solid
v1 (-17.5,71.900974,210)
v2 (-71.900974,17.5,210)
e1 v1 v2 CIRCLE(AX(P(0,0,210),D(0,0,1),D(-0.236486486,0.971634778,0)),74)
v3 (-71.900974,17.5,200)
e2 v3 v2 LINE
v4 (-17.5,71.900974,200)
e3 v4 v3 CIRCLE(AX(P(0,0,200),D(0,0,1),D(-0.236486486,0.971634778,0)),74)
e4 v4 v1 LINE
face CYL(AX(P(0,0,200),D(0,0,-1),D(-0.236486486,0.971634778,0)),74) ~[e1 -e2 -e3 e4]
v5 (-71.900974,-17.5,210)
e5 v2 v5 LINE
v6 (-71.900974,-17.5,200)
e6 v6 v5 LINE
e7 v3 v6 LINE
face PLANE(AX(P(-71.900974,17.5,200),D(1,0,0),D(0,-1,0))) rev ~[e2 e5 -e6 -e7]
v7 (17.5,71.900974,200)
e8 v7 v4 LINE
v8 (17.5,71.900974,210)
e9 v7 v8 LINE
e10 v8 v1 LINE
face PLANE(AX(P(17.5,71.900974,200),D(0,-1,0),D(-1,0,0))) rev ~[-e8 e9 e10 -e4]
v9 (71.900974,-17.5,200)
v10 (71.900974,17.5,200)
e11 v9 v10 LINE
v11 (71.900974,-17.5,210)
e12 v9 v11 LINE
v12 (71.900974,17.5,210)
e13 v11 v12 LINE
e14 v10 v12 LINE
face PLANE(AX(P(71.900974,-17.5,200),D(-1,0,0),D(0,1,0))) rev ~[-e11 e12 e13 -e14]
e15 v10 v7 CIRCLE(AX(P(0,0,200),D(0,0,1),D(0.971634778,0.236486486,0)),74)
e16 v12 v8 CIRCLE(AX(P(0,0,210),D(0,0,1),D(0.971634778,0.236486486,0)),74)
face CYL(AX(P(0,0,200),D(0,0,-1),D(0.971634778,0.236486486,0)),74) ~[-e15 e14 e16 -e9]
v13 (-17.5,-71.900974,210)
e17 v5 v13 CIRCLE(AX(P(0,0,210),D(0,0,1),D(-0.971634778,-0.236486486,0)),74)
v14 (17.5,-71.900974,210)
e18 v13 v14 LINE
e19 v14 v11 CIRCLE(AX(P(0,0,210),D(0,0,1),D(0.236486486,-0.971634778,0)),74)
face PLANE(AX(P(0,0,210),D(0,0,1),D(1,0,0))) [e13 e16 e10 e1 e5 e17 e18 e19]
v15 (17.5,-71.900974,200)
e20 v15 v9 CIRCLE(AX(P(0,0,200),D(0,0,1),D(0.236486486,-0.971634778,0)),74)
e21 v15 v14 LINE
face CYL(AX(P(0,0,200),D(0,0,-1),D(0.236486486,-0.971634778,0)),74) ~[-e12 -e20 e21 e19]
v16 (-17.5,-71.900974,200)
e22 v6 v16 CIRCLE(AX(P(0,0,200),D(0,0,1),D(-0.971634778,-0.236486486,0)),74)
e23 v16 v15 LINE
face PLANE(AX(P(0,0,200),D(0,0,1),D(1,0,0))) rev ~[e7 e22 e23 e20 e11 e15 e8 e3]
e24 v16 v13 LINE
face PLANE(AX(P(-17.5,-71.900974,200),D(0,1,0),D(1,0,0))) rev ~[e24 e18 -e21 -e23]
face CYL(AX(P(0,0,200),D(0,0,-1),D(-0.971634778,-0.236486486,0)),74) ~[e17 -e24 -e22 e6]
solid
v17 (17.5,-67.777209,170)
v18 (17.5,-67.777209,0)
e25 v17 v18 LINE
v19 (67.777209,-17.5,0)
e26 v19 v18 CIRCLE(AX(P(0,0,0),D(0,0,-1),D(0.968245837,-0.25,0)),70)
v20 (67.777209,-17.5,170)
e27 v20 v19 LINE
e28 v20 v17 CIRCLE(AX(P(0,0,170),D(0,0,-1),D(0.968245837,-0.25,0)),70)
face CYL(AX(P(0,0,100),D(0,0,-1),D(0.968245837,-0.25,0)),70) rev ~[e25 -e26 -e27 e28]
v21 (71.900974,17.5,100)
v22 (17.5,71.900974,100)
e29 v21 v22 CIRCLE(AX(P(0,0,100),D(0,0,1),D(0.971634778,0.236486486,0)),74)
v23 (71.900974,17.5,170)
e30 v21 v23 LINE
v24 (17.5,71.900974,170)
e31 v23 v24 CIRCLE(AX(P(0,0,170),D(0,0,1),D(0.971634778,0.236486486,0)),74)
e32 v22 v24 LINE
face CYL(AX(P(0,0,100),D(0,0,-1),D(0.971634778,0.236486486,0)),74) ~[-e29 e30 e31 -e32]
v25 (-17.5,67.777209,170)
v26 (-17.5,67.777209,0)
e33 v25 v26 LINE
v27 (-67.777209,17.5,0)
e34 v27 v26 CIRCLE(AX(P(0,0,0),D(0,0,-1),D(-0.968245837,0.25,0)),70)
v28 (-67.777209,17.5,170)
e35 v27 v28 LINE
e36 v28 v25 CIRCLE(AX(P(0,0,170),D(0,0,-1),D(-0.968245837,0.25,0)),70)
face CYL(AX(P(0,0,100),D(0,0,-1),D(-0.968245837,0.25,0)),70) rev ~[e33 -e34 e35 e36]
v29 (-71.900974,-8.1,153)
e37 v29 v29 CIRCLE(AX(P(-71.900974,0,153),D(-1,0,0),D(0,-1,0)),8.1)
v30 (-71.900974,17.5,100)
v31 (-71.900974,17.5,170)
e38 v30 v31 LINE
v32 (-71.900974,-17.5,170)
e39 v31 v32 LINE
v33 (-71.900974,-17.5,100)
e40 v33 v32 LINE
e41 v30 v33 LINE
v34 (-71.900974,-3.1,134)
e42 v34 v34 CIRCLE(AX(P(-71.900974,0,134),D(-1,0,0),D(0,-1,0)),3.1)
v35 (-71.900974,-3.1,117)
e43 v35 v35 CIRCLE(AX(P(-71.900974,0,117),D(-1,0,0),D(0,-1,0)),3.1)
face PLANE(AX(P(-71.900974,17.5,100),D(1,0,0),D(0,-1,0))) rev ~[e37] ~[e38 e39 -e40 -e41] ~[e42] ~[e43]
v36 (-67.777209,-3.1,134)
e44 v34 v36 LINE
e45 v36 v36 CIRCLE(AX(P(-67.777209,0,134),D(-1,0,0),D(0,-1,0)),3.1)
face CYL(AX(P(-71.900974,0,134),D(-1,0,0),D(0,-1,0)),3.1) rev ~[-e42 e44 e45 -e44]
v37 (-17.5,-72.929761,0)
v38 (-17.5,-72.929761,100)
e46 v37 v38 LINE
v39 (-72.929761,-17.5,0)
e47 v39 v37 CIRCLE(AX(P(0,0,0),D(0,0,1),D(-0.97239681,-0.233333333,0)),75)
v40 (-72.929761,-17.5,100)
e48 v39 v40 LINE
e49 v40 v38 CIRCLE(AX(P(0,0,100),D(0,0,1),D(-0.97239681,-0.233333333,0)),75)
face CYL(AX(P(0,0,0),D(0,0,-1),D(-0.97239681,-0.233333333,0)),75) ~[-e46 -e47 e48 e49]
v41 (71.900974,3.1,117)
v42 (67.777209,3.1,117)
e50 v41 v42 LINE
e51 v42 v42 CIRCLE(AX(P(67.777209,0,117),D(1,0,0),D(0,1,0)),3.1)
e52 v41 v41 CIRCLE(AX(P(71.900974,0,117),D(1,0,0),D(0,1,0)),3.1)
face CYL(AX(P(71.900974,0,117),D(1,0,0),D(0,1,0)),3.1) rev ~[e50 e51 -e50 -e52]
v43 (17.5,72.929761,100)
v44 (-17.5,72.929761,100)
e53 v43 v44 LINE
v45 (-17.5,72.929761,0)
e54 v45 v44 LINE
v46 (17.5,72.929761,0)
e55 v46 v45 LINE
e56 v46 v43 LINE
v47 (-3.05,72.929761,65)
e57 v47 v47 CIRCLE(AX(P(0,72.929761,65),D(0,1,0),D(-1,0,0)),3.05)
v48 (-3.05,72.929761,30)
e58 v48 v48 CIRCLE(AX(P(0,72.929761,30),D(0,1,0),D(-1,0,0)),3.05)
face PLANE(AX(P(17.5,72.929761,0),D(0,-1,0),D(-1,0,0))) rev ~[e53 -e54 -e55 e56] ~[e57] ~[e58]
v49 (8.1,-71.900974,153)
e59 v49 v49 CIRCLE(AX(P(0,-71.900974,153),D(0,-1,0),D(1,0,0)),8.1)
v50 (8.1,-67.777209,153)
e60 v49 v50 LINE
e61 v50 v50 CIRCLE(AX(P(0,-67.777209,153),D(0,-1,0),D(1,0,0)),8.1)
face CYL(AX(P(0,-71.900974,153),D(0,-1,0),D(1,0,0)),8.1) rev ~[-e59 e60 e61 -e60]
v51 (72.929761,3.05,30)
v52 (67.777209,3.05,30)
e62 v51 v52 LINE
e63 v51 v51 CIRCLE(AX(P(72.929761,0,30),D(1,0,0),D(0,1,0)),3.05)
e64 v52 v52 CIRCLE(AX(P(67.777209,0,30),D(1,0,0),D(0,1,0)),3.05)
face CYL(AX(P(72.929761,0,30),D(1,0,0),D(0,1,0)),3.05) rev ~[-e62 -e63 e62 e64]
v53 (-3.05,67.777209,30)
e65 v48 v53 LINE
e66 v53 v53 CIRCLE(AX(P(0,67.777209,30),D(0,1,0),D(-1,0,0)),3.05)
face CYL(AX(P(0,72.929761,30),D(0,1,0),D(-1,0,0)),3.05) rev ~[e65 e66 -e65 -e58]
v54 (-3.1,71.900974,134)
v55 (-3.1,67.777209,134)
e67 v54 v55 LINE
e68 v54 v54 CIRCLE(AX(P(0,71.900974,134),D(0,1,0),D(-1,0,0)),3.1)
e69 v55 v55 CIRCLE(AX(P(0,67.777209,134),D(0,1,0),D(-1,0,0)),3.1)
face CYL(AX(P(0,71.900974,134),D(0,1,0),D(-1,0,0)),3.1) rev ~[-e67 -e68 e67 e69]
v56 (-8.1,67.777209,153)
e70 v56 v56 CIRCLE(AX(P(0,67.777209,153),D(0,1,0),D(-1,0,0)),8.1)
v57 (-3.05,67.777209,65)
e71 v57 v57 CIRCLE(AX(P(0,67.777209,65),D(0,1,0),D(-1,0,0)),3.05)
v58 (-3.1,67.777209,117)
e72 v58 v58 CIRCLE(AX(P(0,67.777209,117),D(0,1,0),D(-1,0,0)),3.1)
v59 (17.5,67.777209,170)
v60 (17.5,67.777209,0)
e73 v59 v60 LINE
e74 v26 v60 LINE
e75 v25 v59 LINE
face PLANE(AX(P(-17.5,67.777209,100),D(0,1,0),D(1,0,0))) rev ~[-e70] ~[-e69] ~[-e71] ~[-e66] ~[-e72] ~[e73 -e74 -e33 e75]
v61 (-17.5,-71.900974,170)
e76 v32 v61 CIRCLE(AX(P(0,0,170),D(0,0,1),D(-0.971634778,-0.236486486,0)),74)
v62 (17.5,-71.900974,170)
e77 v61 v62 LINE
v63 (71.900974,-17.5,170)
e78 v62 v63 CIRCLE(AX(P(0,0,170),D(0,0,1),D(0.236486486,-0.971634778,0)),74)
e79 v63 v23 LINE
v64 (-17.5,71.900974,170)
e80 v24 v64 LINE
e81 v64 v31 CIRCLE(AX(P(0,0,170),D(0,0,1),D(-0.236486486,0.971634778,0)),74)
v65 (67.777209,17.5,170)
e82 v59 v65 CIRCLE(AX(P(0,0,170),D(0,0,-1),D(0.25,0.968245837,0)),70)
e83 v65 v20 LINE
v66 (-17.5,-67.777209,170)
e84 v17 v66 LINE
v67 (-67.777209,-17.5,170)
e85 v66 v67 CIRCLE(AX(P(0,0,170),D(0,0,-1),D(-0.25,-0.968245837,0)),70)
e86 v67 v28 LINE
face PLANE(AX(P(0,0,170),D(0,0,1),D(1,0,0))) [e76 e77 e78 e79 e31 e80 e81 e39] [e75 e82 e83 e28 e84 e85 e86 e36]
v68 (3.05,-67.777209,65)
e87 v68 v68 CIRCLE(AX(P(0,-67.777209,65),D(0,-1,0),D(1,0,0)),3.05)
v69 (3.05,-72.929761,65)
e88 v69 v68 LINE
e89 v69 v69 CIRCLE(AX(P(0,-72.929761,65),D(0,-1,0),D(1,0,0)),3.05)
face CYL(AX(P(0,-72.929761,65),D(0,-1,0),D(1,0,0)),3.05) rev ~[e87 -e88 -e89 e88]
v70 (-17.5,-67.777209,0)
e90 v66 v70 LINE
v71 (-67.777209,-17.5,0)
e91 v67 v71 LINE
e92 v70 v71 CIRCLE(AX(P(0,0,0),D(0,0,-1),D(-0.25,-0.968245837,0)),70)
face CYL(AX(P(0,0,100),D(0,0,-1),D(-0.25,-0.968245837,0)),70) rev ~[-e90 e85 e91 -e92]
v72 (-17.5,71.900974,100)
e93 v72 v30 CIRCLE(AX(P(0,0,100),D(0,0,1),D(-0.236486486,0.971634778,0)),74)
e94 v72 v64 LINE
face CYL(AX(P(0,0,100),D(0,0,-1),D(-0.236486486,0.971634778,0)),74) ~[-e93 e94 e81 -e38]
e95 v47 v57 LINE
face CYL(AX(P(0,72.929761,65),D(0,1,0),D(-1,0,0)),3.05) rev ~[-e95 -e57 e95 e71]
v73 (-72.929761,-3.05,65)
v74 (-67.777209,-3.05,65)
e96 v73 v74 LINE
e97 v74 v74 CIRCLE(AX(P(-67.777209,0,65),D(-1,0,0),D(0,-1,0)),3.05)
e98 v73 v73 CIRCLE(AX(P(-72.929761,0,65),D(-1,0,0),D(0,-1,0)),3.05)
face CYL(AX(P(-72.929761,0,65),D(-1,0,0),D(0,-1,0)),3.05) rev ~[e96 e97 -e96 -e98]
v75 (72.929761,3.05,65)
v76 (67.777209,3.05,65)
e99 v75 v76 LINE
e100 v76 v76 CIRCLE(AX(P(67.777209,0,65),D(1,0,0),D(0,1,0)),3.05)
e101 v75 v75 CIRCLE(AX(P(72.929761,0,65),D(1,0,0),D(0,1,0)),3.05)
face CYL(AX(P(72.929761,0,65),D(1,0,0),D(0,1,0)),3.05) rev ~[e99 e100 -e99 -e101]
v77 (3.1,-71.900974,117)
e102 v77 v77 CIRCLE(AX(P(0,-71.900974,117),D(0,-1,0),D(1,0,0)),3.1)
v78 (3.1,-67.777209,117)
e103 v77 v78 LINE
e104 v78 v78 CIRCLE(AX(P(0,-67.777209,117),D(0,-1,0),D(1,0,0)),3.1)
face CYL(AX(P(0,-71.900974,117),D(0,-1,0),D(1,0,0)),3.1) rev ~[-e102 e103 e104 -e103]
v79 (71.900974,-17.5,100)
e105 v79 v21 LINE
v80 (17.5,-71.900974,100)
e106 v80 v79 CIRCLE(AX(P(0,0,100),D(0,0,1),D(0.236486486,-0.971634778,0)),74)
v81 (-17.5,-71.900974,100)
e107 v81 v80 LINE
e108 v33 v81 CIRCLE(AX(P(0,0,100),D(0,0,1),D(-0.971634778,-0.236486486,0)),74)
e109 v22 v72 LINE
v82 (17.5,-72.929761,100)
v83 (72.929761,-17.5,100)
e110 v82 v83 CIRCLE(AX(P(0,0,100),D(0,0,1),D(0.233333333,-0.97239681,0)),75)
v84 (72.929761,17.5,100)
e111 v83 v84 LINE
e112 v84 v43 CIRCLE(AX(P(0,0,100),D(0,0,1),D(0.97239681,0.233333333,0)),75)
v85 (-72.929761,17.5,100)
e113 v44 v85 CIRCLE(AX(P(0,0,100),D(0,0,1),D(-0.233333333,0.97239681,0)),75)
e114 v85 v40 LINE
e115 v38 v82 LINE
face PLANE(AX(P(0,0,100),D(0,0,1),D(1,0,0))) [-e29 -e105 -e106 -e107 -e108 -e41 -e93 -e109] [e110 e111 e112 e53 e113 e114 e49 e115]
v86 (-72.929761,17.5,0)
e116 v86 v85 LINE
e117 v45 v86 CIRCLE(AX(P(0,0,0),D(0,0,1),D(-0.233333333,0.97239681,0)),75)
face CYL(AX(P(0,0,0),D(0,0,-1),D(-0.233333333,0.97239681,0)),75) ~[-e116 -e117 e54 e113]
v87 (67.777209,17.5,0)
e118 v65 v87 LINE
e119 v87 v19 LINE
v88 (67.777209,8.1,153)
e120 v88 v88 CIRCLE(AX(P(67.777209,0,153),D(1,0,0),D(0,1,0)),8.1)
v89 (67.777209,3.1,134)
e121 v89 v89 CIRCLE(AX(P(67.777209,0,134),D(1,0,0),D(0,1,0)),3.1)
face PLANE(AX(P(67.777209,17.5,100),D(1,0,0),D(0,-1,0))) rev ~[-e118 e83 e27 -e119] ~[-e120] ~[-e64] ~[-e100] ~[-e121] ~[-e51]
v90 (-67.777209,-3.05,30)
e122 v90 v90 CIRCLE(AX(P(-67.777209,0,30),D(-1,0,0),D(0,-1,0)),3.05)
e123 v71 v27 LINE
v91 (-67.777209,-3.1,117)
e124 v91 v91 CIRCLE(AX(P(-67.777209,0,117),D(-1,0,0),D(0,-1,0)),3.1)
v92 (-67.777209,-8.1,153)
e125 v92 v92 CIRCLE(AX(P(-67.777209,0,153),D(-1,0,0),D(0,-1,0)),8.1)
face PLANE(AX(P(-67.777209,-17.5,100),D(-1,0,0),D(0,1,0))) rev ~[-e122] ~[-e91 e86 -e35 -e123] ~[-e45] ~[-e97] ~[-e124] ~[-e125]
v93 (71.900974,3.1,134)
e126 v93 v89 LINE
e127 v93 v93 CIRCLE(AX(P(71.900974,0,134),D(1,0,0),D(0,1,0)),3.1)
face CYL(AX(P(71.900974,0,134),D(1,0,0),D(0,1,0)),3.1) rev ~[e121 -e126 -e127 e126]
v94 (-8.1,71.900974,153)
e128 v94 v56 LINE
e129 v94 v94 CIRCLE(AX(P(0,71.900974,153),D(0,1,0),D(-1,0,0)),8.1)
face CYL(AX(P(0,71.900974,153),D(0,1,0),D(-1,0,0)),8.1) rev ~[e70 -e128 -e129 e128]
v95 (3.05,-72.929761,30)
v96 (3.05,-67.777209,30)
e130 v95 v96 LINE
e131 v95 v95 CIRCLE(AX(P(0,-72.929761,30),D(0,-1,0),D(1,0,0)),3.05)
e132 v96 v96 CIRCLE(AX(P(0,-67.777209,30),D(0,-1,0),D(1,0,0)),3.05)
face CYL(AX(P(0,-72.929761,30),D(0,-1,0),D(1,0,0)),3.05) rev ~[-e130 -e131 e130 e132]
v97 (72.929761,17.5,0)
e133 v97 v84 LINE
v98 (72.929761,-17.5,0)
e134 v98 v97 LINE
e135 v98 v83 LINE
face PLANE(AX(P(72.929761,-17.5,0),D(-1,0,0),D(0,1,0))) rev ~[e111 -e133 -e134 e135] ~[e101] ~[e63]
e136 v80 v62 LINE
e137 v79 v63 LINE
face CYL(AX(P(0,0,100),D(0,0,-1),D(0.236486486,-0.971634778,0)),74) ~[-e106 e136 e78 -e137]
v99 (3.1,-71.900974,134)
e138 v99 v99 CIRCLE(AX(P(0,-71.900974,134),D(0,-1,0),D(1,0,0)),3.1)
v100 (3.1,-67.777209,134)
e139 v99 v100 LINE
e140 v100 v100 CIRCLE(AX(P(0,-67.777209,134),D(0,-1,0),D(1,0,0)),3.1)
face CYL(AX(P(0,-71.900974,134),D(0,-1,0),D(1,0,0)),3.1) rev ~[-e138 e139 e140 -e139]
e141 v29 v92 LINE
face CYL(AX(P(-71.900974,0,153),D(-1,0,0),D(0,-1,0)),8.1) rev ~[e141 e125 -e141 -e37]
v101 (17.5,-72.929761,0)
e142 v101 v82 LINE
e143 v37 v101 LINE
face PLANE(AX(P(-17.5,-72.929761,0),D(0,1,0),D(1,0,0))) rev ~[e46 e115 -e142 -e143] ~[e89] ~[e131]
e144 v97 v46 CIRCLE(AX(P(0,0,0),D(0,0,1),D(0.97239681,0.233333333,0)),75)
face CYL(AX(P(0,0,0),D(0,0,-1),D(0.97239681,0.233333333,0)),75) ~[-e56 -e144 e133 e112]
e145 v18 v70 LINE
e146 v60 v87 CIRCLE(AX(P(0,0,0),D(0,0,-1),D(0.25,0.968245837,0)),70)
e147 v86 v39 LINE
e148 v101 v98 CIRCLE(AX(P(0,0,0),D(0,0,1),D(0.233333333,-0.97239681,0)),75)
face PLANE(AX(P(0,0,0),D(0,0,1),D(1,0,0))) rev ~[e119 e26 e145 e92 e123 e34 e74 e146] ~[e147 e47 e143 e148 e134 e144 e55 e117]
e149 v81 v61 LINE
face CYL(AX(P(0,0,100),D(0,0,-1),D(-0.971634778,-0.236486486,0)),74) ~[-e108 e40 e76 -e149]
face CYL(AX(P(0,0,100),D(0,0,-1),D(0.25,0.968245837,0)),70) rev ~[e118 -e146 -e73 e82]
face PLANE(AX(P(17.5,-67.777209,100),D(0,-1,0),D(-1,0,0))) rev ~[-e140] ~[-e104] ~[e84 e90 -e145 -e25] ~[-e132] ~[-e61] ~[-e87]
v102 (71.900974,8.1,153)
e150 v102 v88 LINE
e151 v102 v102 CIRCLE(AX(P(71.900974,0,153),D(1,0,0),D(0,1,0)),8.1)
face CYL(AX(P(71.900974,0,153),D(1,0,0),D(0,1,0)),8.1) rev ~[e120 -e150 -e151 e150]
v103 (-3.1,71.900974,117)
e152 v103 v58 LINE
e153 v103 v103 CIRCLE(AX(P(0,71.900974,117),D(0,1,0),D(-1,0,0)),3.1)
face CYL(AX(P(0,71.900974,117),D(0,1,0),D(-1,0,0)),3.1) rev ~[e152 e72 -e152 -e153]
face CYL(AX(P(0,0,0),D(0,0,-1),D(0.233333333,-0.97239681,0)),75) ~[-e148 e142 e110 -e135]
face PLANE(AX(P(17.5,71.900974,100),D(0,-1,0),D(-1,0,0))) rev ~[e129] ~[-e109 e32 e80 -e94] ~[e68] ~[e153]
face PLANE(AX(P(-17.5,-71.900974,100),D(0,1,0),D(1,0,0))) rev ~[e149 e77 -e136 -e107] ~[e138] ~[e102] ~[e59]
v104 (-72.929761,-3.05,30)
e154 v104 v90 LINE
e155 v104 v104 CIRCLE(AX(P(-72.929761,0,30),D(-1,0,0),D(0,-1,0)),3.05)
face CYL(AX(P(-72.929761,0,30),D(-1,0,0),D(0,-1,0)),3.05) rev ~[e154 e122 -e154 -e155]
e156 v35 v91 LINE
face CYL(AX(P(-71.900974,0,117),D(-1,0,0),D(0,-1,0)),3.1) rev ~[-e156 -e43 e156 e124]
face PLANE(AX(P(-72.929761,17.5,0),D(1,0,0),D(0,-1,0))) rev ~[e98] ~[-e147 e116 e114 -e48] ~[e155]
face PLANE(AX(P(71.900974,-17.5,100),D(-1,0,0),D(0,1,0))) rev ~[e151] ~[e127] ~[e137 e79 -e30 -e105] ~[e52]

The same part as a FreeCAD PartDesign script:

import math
import FreeCAD as App
import Part
import Sketcher
from FreeCAD import Vector

doc = App.newDocument("Part")
body = doc.addObject("PartDesign::Body", "Body")

# Sketch on XY plane
sketch1 = doc.addObject("Sketcher::SketchObject", "Sketch")
body.addObject(sketch1)
sketch1.AttachmentSupport = (doc.XY_Plane, [""])
sketch1.MapMode = "FlatFace"
sketch1.addGeometry([
    Part.LineSegment(Vector(18, 73, 0), Vector(-18, 73, 0)),  # 0
    Part.ArcOfCircle(Part.Circle(Vector(0, 0, 0), Vector(0, 0, 1), 75), math.radians(103), math.radians(167)),  # 1
    Part.LineSegment(Vector(-73, 18, 0), Vector(-73, -18, 0)),  # 2
    Part.ArcOfCircle(Part.Circle(Vector(0, 0, 0), Vector(0, 0, 1), 75), math.radians(-167), math.radians(-103)),  # 3
    Part.LineSegment(Vector(-18, -73, 0), Vector(18, -73, 0)),  # 4
    Part.ArcOfCircle(Part.Circle(Vector(0, 0, 0), Vector(0, 0, 1), 75), math.radians(-77), math.radians(-13)),  # 5
    Part.LineSegment(Vector(73, -18, 0), Vector(73, 18, 0)),  # 6
    Part.ArcOfCircle(Part.Circle(Vector(0, 0, 0), Vector(0, 0, 1), 75), math.radians(13), math.radians(77)),  # 7
    Part.LineSegment(Vector(-68, -18, 0), Vector(-68, 18, 0)),  # 8
    Part.ArcOfCircle(Part.Circle(Vector(0, 0, 0), Vector(0, 0, 1), 70), math.radians(104), math.radians(166)),  # 9
    Part.LineSegment(Vector(-18, 68, 0), Vector(18, 68, 0)),  # 10
    Part.ArcOfCircle(Part.Circle(Vector(0, 0, 0), Vector(0, 0, 1), 70), math.radians(14), math.radians(76)),  # 11
    Part.LineSegment(Vector(68, 18, 0), Vector(68, -18, 0)),  # 12
    Part.ArcOfCircle(Part.Circle(Vector(0, 0, 0), Vector(0, 0, 1), 70), math.radians(-76), math.radians(-14)),  # 13
    Part.LineSegment(Vector(18, -68, 0), Vector(-18, -68, 0)),  # 14
    Part.ArcOfCircle(Part.Circle(Vector(0, 0, 0), Vector(0, 0, 1), 70), math.radians(-166), math.radians(-104)),  # 15
], False)
sketch1.addConstraint([
    Sketcher.Constraint("Coincident", 0, 2, 1, 1),
    Sketcher.Constraint("Coincident", 1, 2, 2, 1),
    Sketcher.Constraint("Coincident", 2, 2, 3, 1),
    Sketcher.Constraint("Coincident", 3, 2, 4, 1),
    Sketcher.Constraint("Coincident", 4, 2, 5, 1),
    Sketcher.Constraint("Coincident", 5, 2, 6, 1),
    Sketcher.Constraint("Coincident", 6, 2, 7, 1),
    Sketcher.Constraint("Coincident", 7, 2, 0, 1),
    Sketcher.Constraint("Coincident", 8, 2, 9, 2),
    Sketcher.Constraint("Coincident", 9, 1, 10, 1),
    Sketcher.Constraint("Coincident", 10, 2, 11, 2),
    Sketcher.Constraint("Coincident", 11, 1, 12, 1),
    Sketcher.Constraint("Coincident", 12, 2, 13, 2),
    Sketcher.Constraint("Coincident", 13, 1, 14, 1),
    Sketcher.Constraint("Coincident", 14, 2, 15, 2),
    Sketcher.Constraint("Coincident", 15, 1, 8, 1),
    Sketcher.Constraint("Horizontal", 0),
    Sketcher.Constraint("Vertical", 2),
    Sketcher.Constraint("Horizontal", 4),
    Sketcher.Constraint("Vertical", 6),
    Sketcher.Constraint("Vertical", 8),
    Sketcher.Constraint("Horizontal", 10),
    Sketcher.Constraint("Vertical", 12),
    Sketcher.Constraint("Horizontal", 14),
    Sketcher.Constraint("Coincident", 1, 3, -1, 1),
    Sketcher.Constraint("Coincident", 3, 3, -1, 1),
    Sketcher.Constraint("Coincident", 5, 3, -1, 1),
    Sketcher.Constraint("Coincident", 7, 3, -1, 1),
    Sketcher.Constraint("Coincident", 9, 3, -1, 1),
    Sketcher.Constraint("Coincident", 11, 3, -1, 1),
    Sketcher.Constraint("Coincident", 13, 3, -1, 1),
    Sketcher.Constraint("Coincident", 15, 3, -1, 1),
    Sketcher.Constraint("Equal", 1, 3),
    Sketcher.Constraint("Equal", 3, 5),
    Sketcher.Constraint("Equal", 5, 7),
    Sketcher.Constraint("Equal", 9, 11),
    Sketcher.Constraint("Equal", 11, 13),
    Sketcher.Constraint("Equal", 13, 15),
    Sketcher.Constraint("Horizontal", 2, 2, 5, 2),
    Sketcher.Constraint("Horizontal", 6, 2, 8, 2),
    Sketcher.Constraint("Horizontal", 8, 2, 11, 1),
    Sketcher.Constraint("Vertical", 0, 2, 3, 2),
    Sketcher.Constraint("Vertical", 3, 2, 9, 1),
    Sketcher.Constraint("Vertical", 10, 2, 13, 1),
    Sketcher.Constraint("Equal", 14, 2),
    Sketcher.Constraint("Radius", 1, 75.0),
    Sketcher.Constraint("Radius", 9, 70.0),
    Sketcher.Constraint("DistanceX", 0, 2, 0, 1, 35.0),
])
pad1 = doc.addObject("PartDesign::Pad", "Pad")
body.addObject(pad1)
pad1.Profile = sketch1
pad1.Length = 100

# Sketch on XY plane
sketch2 = doc.addObject("Sketcher::SketchObject", "Sketch001")
body.addObject(sketch2)
sketch2.AttachmentSupport = (doc.XY_Plane, [""])
sketch2.MapMode = "FlatFace"
sketch2.AttachmentOffset = App.Placement(Vector(0, 0, 100), App.Rotation())
sketch2.addGeometry([
    Part.LineSegment(Vector(18, 72, 0), Vector(-18, 72, 0)),  # 0
    Part.ArcOfCircle(Part.Circle(Vector(0, 0, 0), Vector(0, 0, 1), 74), math.radians(104), math.radians(166)),  # 1
    Part.LineSegment(Vector(-72, 18, 0), Vector(-72, -18, 0)),  # 2
    Part.ArcOfCircle(Part.Circle(Vector(0, 0, 0), Vector(0, 0, 1), 74), math.radians(-166), math.radians(-104)),  # 3
    Part.LineSegment(Vector(-18, -72, 0), Vector(18, -72, 0)),  # 4
    Part.ArcOfCircle(Part.Circle(Vector(0, 0, 0), Vector(0, 0, 1), 74), math.radians(-76), math.radians(-14)),  # 5
    Part.LineSegment(Vector(72, -18, 0), Vector(72, 18, 0)),  # 6
    Part.ArcOfCircle(Part.Circle(Vector(0, 0, 0), Vector(0, 0, 1), 74), math.radians(14), math.radians(76)),  # 7
    Part.LineSegment(Vector(-68, -18, 0), Vector(-68, 18, 0)),  # 8
    Part.ArcOfCircle(Part.Circle(Vector(0, 0, 0), Vector(0, 0, 1), 70), math.radians(104), math.radians(166)),  # 9
    Part.LineSegment(Vector(-18, 68, 0), Vector(18, 68, 0)),  # 10
    Part.ArcOfCircle(Part.Circle(Vector(0, 0, 0), Vector(0, 0, 1), 70), math.radians(14), math.radians(76)),  # 11
    Part.LineSegment(Vector(68, 18, 0), Vector(68, -18, 0)),  # 12
    Part.ArcOfCircle(Part.Circle(Vector(0, 0, 0), Vector(0, 0, 1), 70), math.radians(-76), math.radians(-14)),  # 13
    Part.LineSegment(Vector(18, -68, 0), Vector(-18, -68, 0)),  # 14
    Part.ArcOfCircle(Part.Circle(Vector(0, 0, 0), Vector(0, 0, 1), 70), math.radians(-166), math.radians(-104)),  # 15
], False)
sketch2.addConstraint([
    Sketcher.Constraint("Coincident", 0, 2, 1, 1),
    Sketcher.Constraint("Coincident", 1, 2, 2, 1),
    Sketcher.Constraint("Coincident", 2, 2, 3, 1),
    Sketcher.Constraint("Coincident", 3, 2, 4, 1),
    Sketcher.Constraint("Coincident", 4, 2, 5, 1),
    Sketcher.Constraint("Coincident", 5, 2, 6, 1),
    Sketcher.Constraint("Coincident", 6, 2, 7, 1),
    Sketcher.Constraint("Coincident", 7, 2, 0, 1),
    Sketcher.Constraint("Coincident", 8, 2, 9, 2),
    Sketcher.Constraint("Coincident", 9, 1, 10, 1),
    Sketcher.Constraint("Coincident", 10, 2, 11, 2),
    Sketcher.Constraint("Coincident", 11, 1, 12, 1),
    Sketcher.Constraint("Coincident", 12, 2, 13, 2),
    Sketcher.Constraint("Coincident", 13, 1, 14, 1),
    Sketcher.Constraint("Coincident", 14, 2, 15, 2),
    Sketcher.Constraint("Coincident", 15, 1, 8, 1),
    Sketcher.Constraint("Horizontal", 0),
    Sketcher.Constraint("Vertical", 2),
    Sketcher.Constraint("Horizontal", 4),
    Sketcher.Constraint("Vertical", 6),
    Sketcher.Constraint("Vertical", 8),
    Sketcher.Constraint("Horizontal", 10),
    Sketcher.Constraint("Vertical", 12),
    Sketcher.Constraint("Horizontal", 14),
    Sketcher.Constraint("Coincident", 1, 3, -1, 1),
    Sketcher.Constraint("Coincident", 3, 3, -1, 1),
    Sketcher.Constraint("Coincident", 5, 3, -1, 1),
    Sketcher.Constraint("Coincident", 7, 3, -1, 1),
    Sketcher.Constraint("Coincident", 9, 3, -1, 1),
    Sketcher.Constraint("Coincident", 11, 3, -1, 1),
    Sketcher.Constraint("Coincident", 13, 3, -1, 1),
    Sketcher.Constraint("Coincident", 15, 3, -1, 1),
    Sketcher.Constraint("Equal", 1, 3),
    Sketcher.Constraint("Equal", 3, 5),
    Sketcher.Constraint("Equal", 5, 7),
    Sketcher.Constraint("Equal", 9, 11),
    Sketcher.Constraint("Equal", 11, 13),
    Sketcher.Constraint("Equal", 13, 15),
    Sketcher.Constraint("Horizontal", 2, 2, 5, 2),
    Sketcher.Constraint("Horizontal", 6, 2, 8, 2),
    Sketcher.Constraint("Horizontal", 8, 2, 11, 1),
    Sketcher.Constraint("Vertical", 0, 2, 3, 2),
    Sketcher.Constraint("Vertical", 3, 2, 9, 1),
    Sketcher.Constraint("Vertical", 10, 2, 13, 1),
    Sketcher.Constraint("Equal", 14, 2),
    Sketcher.Constraint("Radius", 1, 74.0),
    Sketcher.Constraint("Radius", 9, 70.0),
    Sketcher.Constraint("DistanceX", 0, 2, 0, 1, 35.0),
])
pad2 = doc.addObject("PartDesign::Pad", "Pad001")
body.addObject(pad2)
pad2.Profile = sketch2
pad2.Length = 70

# Sketch on XZ plane
sketch3 = doc.addObject("Sketcher::SketchObject", "Sketch002")
body.addObject(sketch3)
sketch3.AttachmentSupport = (doc.XZ_Plane, [""])
sketch3.MapMode = "FlatFace"
sketch3.AttachmentOffset = App.Placement(Vector(0, 0, 71.900974), App.Rotation())
sketch3.addGeometry([
    Part.Circle(Vector(0, 153, 0), Vector(0, 0, 1), 8.1),
    Part.Circle(Vector(0, 134, 0), Vector(0, 0, 1), 3.1),
    Part.Circle(Vector(0, 117, 0), Vector(0, 0, 1), 3.1),
], False)
sketch3.addConstraint([
    Sketcher.Constraint("Equal", 1, 2),
    Sketcher.Constraint("PointOnObject", 0, 3, -2),
    Sketcher.Constraint("PointOnObject", 1, 3, -2),
    Sketcher.Constraint("PointOnObject", 2, 3, -2),
    Sketcher.Constraint("Diameter", 0, 16.2),
    Sketcher.Constraint("Diameter", 1, 6.2),
    Sketcher.Constraint("DistanceY", -1, 1, 0, 3, 153.0),
    Sketcher.Constraint("DistanceY", -1, 1, 1, 3, 134.0),
    Sketcher.Constraint("DistanceY", -1, 1, 2, 3, 117.0),
])
pocket1 = doc.addObject("PartDesign::Pocket", "Pocket")
body.addObject(pocket1)
pocket1.Profile = sketch3
pocket1.Length = 4.123765

# Sketch on YZ plane
sketch4 = doc.addObject("Sketcher::SketchObject", "Sketch003")
body.addObject(sketch4)
sketch4.AttachmentSupport = (doc.YZ_Plane, [""])
sketch4.MapMode = "FlatFace"
sketch4.AttachmentOffset = App.Placement(Vector(0, 0, 71.900974), App.Rotation())
sketch4.addGeometry([
    Part.Circle(Vector(0, 153, 0), Vector(0, 0, 1), 8.1),
    Part.Circle(Vector(0, 134, 0), Vector(0, 0, 1), 3.1),
    Part.Circle(Vector(0, 117, 0), Vector(0, 0, 1), 3.1),
], False)
sketch4.addConstraint([
    Sketcher.Constraint("Equal", 1, 2),
    Sketcher.Constraint("PointOnObject", 0, 3, -2),
    Sketcher.Constraint("PointOnObject", 1, 3, -2),
    Sketcher.Constraint("PointOnObject", 2, 3, -2),
    Sketcher.Constraint("Diameter", 0, 16.2),
    Sketcher.Constraint("Diameter", 1, 6.2),
    Sketcher.Constraint("DistanceY", -1, 1, 0, 3, 153.0),
    Sketcher.Constraint("DistanceY", -1, 1, 1, 3, 134.0),
    Sketcher.Constraint("DistanceY", -1, 1, 2, 3, 117.0),
])
pocket2 = doc.addObject("PartDesign::Pocket", "Pocket001")
body.addObject(pocket2)
pocket2.Profile = sketch4
pocket2.Length = 4.123765

# Sketch on XZ plane
sketch5 = doc.addObject("Sketcher::SketchObject", "Sketch004")
body.addObject(sketch5)
sketch5.AttachmentSupport = (doc.XZ_Plane, [""])
sketch5.MapMode = "FlatFace"
sketch5.AttachmentOffset = App.Placement(Vector(0, 0, -71.900974), App.Rotation())
sketch5.addGeometry([
    Part.Circle(Vector(0, 153, 0), Vector(0, 0, 1), 8.1),
    Part.Circle(Vector(0, 134, 0), Vector(0, 0, 1), 3.1),
    Part.Circle(Vector(0, 117, 0), Vector(0, 0, 1), 3.1),
], False)
sketch5.addConstraint([
    Sketcher.Constraint("Equal", 1, 2),
    Sketcher.Constraint("PointOnObject", 0, 3, -2),
    Sketcher.Constraint("PointOnObject", 1, 3, -2),
    Sketcher.Constraint("PointOnObject", 2, 3, -2),
    Sketcher.Constraint("Diameter", 0, 16.2),
    Sketcher.Constraint("Diameter", 1, 6.2),
    Sketcher.Constraint("DistanceY", -1, 1, 0, 3, 153.0),
    Sketcher.Constraint("DistanceY", -1, 1, 1, 3, 134.0),
    Sketcher.Constraint("DistanceY", -1, 1, 2, 3, 117.0),
])
pocket3 = doc.addObject("PartDesign::Pocket", "Pocket002")
body.addObject(pocket3)
pocket3.Profile = sketch5
pocket3.Type = "ThroughAll"
pocket3.Reversed = True

# Sketch on YZ plane
sketch6 = doc.addObject("Sketcher::SketchObject", "Sketch005")
body.addObject(sketch6)
sketch6.AttachmentSupport = (doc.YZ_Plane, [""])
sketch6.MapMode = "FlatFace"
sketch6.AttachmentOffset = App.Placement(Vector(0, 0, -71.900974), App.Rotation())
sketch6.addGeometry([
    Part.Circle(Vector(0, 153, 0), Vector(0, 0, 1), 8.1),
    Part.Circle(Vector(0, 134, 0), Vector(0, 0, 1), 3.1),
    Part.Circle(Vector(0, 117, 0), Vector(0, 0, 1), 3.1),
], False)
sketch6.addConstraint([
    Sketcher.Constraint("Equal", 1, 2),
    Sketcher.Constraint("PointOnObject", 0, 3, -2),
    Sketcher.Constraint("PointOnObject", 1, 3, -2),
    Sketcher.Constraint("PointOnObject", 2, 3, -2),
    Sketcher.Constraint("Diameter", 0, 16.2),
    Sketcher.Constraint("Diameter", 1, 6.2),
    Sketcher.Constraint("DistanceY", -1, 1, 0, 3, 153.0),
    Sketcher.Constraint("DistanceY", -1, 1, 1, 3, 134.0),
    Sketcher.Constraint("DistanceY", -1, 1, 2, 3, 117.0),
])
pocket4 = doc.addObject("PartDesign::Pocket", "Pocket003")
body.addObject(pocket4)
pocket4.Profile = sketch6
pocket4.Type = "ThroughAll"
pocket4.Reversed = True

# Sketch on YZ plane
sketch7 = doc.addObject("Sketcher::SketchObject", "Sketch006")
body.addObject(sketch7)
sketch7.AttachmentSupport = (doc.YZ_Plane, [""])
sketch7.MapMode = "FlatFace"
sketch7.AttachmentOffset = App.Placement(Vector(0, 0, 72.929761), App.Rotation())
sketch7.addGeometry([
    Part.Circle(Vector(0, 65, 0), Vector(0, 0, 1), 3),
    Part.Circle(Vector(0, 30, 0), Vector(0, 0, 1), 3),
], False)
sketch7.addConstraint([
    Sketcher.Constraint("Equal", 0, 1),
    Sketcher.Constraint("PointOnObject", 0, 3, -2),
    Sketcher.Constraint("PointOnObject", 1, 3, -2),
    Sketcher.Constraint("Diameter", 0, 6.1),
    Sketcher.Constraint("DistanceY", -1, 1, 0, 3, 65.0),
    Sketcher.Constraint("DistanceY", -1, 1, 1, 3, 30.0),
])
pocket5 = doc.addObject("PartDesign::Pocket", "Pocket004")
body.addObject(pocket5)
pocket5.Profile = sketch7
pocket5.Length = 5.152552

# Sketch on XZ plane
sketch8 = doc.addObject("Sketcher::SketchObject", "Sketch007")
body.addObject(sketch8)
sketch8.AttachmentSupport = (doc.XZ_Plane, [""])
sketch8.MapMode = "FlatFace"
sketch8.AttachmentOffset = App.Placement(Vector(0, 0, 72.929761), App.Rotation())
sketch8.addGeometry([
    Part.Circle(Vector(0, 65, 0), Vector(0, 0, 1), 3),
    Part.Circle(Vector(0, 30, 0), Vector(0, 0, 1), 3),
], False)
sketch8.addConstraint([
    Sketcher.Constraint("Equal", 0, 1),
    Sketcher.Constraint("PointOnObject", 0, 3, -2),
    Sketcher.Constraint("PointOnObject", 1, 3, -2),
    Sketcher.Constraint("Diameter", 0, 6.1),
    Sketcher.Constraint("DistanceY", -1, 1, 0, 3, 65.0),
    Sketcher.Constraint("DistanceY", -1, 1, 1, 3, 30.0),
])
pocket6 = doc.addObject("PartDesign::Pocket", "Pocket005")
body.addObject(pocket6)
pocket6.Profile = sketch8
pocket6.Length = 5.152552

# Sketch on XZ plane
sketch9 = doc.addObject("Sketcher::SketchObject", "Sketch008")
body.addObject(sketch9)
sketch9.AttachmentSupport = (doc.XZ_Plane, [""])
sketch9.MapMode = "FlatFace"
sketch9.AttachmentOffset = App.Placement(Vector(0, 0, -72.929761), App.Rotation())
sketch9.addGeometry([
    Part.Circle(Vector(0, 65, 0), Vector(0, 0, 1), 3),
    Part.Circle(Vector(0, 30, 0), Vector(0, 0, 1), 3),
], False)
sketch9.addConstraint([
    Sketcher.Constraint("Equal", 0, 1),
    Sketcher.Constraint("PointOnObject", 0, 3, -2),
    Sketcher.Constraint("PointOnObject", 1, 3, -2),
    Sketcher.Constraint("Diameter", 0, 6.1),
    Sketcher.Constraint("DistanceY", -1, 1, 0, 3, 65.0),
    Sketcher.Constraint("DistanceY", -1, 1, 1, 3, 30.0),
])
pocket7 = doc.addObject("PartDesign::Pocket", "Pocket006")
body.addObject(pocket7)
pocket7.Profile = sketch9
pocket7.Type = "ThroughAll"
pocket7.Reversed = True

# Sketch on YZ plane
sketch10 = doc.addObject("Sketcher::SketchObject", "Sketch009")
body.addObject(sketch10)
sketch10.AttachmentSupport = (doc.YZ_Plane, [""])
sketch10.MapMode = "FlatFace"
sketch10.AttachmentOffset = App.Placement(Vector(0, 0, -72.929761), App.Rotation())
sketch10.addGeometry([
    Part.Circle(Vector(0, 65, 0), Vector(0, 0, 1), 3),
    Part.Circle(Vector(0, 30, 0), Vector(0, 0, 1), 3),
], False)
sketch10.addConstraint([
    Sketcher.Constraint("Equal", 0, 1),
    Sketcher.Constraint("PointOnObject", 0, 3, -2),
    Sketcher.Constraint("PointOnObject", 1, 3, -2),
    Sketcher.Constraint("Diameter", 0, 6.1),
    Sketcher.Constraint("DistanceY", -1, 1, 0, 3, 65.0),
    Sketcher.Constraint("DistanceY", -1, 1, 1, 3, 30.0),
])
pocket8 = doc.addObject("PartDesign::Pocket", "Pocket007")
body.addObject(pocket8)
pocket8.Profile = sketch10
pocket8.Type = "ThroughAll"
pocket8.Reversed = True
body2 = doc.addObject("PartDesign::Body", "Body001")

# Sketch on XY plane
sketch11 = doc.addObject("Sketcher::SketchObject", "Sketch010")
body2.addObject(sketch11)
sketch11.AttachmentSupport = (doc.getObject("XY_Plane001"), [""])
sketch11.MapMode = "FlatFace"
sketch11.AttachmentOffset = App.Placement(Vector(0, 0, 200), App.Rotation())
sketch11.addGeometry([
    Part.LineSegment(Vector(18, 72, 0), Vector(-18, 72, 0)),  # 0
    Part.ArcOfCircle(Part.Circle(Vector(0, 0, 0), Vector(0, 0, 1), 74), math.radians(104), math.radians(166)),  # 1
    Part.LineSegment(Vector(-72, 18, 0), Vector(-72, -18, 0)),  # 2
    Part.ArcOfCircle(Part.Circle(Vector(0, 0, 0), Vector(0, 0, 1), 74), math.radians(-166), math.radians(-104)),  # 3
    Part.LineSegment(Vector(-18, -72, 0), Vector(18, -72, 0)),  # 4
    Part.ArcOfCircle(Part.Circle(Vector(0, 0, 0), Vector(0, 0, 1), 74), math.radians(-76), math.radians(-14)),  # 5
    Part.LineSegment(Vector(72, -18, 0), Vector(72, 18, 0)),  # 6
    Part.ArcOfCircle(Part.Circle(Vector(0, 0, 0), Vector(0, 0, 1), 74), math.radians(14), math.radians(76)),  # 7
], False)
sketch11.addConstraint([
    Sketcher.Constraint("Coincident", 0, 2, 1, 1),
    Sketcher.Constraint("Coincident", 1, 2, 2, 1),
    Sketcher.Constraint("Coincident", 2, 2, 3, 1),
    Sketcher.Constraint("Coincident", 3, 2, 4, 1),
    Sketcher.Constraint("Coincident", 4, 2, 5, 1),
    Sketcher.Constraint("Coincident", 5, 2, 6, 1),
    Sketcher.Constraint("Coincident", 6, 2, 7, 1),
    Sketcher.Constraint("Coincident", 7, 2, 0, 1),
    Sketcher.Constraint("Horizontal", 0),
    Sketcher.Constraint("Vertical", 2),
    Sketcher.Constraint("Horizontal", 4),
    Sketcher.Constraint("Vertical", 6),
    Sketcher.Constraint("Coincident", 1, 3, -1, 1),
    Sketcher.Constraint("Coincident", 3, 3, -1, 1),
    Sketcher.Constraint("Coincident", 5, 3, -1, 1),
    Sketcher.Constraint("Coincident", 7, 3, -1, 1),
    Sketcher.Constraint("Equal", 1, 3),
    Sketcher.Constraint("Equal", 3, 5),
    Sketcher.Constraint("Equal", 5, 7),
    Sketcher.Constraint("Horizontal", 2, 2, 5, 2),
    Sketcher.Constraint("Vertical", 0, 2, 3, 2),
    Sketcher.Constraint("Equal", 4, 2),
    Sketcher.Constraint("Radius", 1, 74.0),
    Sketcher.Constraint("DistanceX", 0, 2, 0, 1, 35.0),
])
pad3 = doc.addObject("PartDesign::Pad", "Pad002")
body2.addObject(pad3)
pad3.Profile = sketch11
pad3.Length = 10

doc.recompute()
